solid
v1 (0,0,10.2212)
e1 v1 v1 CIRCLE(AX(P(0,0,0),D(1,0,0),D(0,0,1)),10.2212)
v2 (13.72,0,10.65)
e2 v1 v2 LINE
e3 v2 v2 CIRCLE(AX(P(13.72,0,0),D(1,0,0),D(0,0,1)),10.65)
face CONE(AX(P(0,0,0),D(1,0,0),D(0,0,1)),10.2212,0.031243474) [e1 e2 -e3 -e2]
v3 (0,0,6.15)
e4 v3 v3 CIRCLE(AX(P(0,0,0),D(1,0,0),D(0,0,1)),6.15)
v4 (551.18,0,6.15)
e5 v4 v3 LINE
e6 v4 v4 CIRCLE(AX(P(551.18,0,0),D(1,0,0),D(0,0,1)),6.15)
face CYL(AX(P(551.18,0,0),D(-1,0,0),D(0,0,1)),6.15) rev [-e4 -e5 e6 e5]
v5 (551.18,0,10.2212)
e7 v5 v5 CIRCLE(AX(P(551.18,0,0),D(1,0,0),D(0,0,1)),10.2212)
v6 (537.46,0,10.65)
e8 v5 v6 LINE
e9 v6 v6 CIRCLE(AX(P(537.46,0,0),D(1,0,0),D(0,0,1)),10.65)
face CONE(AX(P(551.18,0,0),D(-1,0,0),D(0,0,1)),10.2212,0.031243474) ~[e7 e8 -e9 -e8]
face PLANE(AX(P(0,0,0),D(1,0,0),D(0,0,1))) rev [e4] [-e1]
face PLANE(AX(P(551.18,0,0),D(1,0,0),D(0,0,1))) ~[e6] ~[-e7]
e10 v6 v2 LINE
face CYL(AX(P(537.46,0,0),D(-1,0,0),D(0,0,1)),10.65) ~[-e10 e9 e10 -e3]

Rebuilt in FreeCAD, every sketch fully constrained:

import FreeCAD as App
import Part
import Sketcher
Q = App.Units.Quantity

doc = App.newDocument("Part")
body = doc.addObject("PartDesign::Body", "Body")

sketch1 = body.newObject("Sketcher::SketchObject", "Sketch")
sketch1.AttachmentSupport = (doc.getObject("XZ_Plane"), [""])
sketch1.MapMode = "FlatFace"
sketch1.addGeometry(Part.LineSegment(App.Vector(551.18, 10.2212, 0), App.Vector(551.18, 6.15, 0)), False)
sketch1.addGeometry(Part.LineSegment(App.Vector(551.18, 6.15, 0), App.Vector(0, 6.15, 0)), False)
sketch1.addGeometry(Part.LineSegment(App.Vector(0, 6.15, 0), App.Vector(0, 10.2212, 0)), False)
sketch1.addGeometry(Part.LineSegment(App.Vector(0, 10.2212, 0), App.Vector(13.72, 10.65, 0)), False)
sketch1.addGeometry(Part.LineSegment(App.Vector(13.72, 10.65, 0), App.Vector(537.46, 10.65, 0)), False)
sketch1.addGeometry(Part.LineSegment(App.Vector(537.46, 10.65, 0), App.Vector(551.18, 10.2212, 0)), False)
sketch1.addConstraint(Sketcher.Constraint("Coincident", 0, 2, 1, 1))
sketch1.addConstraint(Sketcher.Constraint("Coincident", 1, 2, 2, 1))
sketch1.addConstraint(Sketcher.Constraint("Coincident", 2, 2, 3, 1))
sketch1.addConstraint(Sketcher.Constraint("Coincident", 3, 2, 4, 1))
sketch1.addConstraint(Sketcher.Constraint("Coincident", 4, 2, 5, 1))
sketch1.addConstraint(Sketcher.Constraint("Coincident", 5, 2, 0, 1))
sketch1.addConstraint(Sketcher.Constraint("Vertical", 0))
sketch1.addConstraint(Sketcher.Constraint("Horizontal", 1))
sketch1.addConstraint(Sketcher.Constraint("Vertical", 2))
sketch1.addConstraint(Sketcher.Constraint("Horizontal", 4))
sketch1.addConstraint(Sketcher.Constraint("PointOnObject", 1, 2, -2))
sketch1.addConstraint(Sketcher.Constraint("Horizontal", 2, 2, 5, 2))
sketch1.addConstraint(Sketcher.Constraint("Equal", 3, 5))
sketch1.addConstraint(Sketcher.Constraint("DistanceX", 1, 2, 1, 1, Q("21.7 in")))
sketch1.addConstraint(Sketcher.Constraint("Angle", 3, Q("1.79 deg")))
sketch1.addConstraint(Sketcher.Constraint("DistanceY", 1, 2, 3, 2, Q("4.5 mm")))
sketch1.addConstraint(Sketcher.Constraint("DistanceX", 4, 1, 4, 2, Q("523.74 mm")))
sketch1.addConstraint(Sketcher.Constraint("DistanceY", -1, 1, 2, 2, Q("0.4024 in")))
revolution = body.newObject("PartDesign::Revolution", "Revolution")
revolution.Profile = sketch1
revolution.ReferenceAxis = (sketch1, ["H_Axis"])
revolution.Angle = 360

doc.recompute()
